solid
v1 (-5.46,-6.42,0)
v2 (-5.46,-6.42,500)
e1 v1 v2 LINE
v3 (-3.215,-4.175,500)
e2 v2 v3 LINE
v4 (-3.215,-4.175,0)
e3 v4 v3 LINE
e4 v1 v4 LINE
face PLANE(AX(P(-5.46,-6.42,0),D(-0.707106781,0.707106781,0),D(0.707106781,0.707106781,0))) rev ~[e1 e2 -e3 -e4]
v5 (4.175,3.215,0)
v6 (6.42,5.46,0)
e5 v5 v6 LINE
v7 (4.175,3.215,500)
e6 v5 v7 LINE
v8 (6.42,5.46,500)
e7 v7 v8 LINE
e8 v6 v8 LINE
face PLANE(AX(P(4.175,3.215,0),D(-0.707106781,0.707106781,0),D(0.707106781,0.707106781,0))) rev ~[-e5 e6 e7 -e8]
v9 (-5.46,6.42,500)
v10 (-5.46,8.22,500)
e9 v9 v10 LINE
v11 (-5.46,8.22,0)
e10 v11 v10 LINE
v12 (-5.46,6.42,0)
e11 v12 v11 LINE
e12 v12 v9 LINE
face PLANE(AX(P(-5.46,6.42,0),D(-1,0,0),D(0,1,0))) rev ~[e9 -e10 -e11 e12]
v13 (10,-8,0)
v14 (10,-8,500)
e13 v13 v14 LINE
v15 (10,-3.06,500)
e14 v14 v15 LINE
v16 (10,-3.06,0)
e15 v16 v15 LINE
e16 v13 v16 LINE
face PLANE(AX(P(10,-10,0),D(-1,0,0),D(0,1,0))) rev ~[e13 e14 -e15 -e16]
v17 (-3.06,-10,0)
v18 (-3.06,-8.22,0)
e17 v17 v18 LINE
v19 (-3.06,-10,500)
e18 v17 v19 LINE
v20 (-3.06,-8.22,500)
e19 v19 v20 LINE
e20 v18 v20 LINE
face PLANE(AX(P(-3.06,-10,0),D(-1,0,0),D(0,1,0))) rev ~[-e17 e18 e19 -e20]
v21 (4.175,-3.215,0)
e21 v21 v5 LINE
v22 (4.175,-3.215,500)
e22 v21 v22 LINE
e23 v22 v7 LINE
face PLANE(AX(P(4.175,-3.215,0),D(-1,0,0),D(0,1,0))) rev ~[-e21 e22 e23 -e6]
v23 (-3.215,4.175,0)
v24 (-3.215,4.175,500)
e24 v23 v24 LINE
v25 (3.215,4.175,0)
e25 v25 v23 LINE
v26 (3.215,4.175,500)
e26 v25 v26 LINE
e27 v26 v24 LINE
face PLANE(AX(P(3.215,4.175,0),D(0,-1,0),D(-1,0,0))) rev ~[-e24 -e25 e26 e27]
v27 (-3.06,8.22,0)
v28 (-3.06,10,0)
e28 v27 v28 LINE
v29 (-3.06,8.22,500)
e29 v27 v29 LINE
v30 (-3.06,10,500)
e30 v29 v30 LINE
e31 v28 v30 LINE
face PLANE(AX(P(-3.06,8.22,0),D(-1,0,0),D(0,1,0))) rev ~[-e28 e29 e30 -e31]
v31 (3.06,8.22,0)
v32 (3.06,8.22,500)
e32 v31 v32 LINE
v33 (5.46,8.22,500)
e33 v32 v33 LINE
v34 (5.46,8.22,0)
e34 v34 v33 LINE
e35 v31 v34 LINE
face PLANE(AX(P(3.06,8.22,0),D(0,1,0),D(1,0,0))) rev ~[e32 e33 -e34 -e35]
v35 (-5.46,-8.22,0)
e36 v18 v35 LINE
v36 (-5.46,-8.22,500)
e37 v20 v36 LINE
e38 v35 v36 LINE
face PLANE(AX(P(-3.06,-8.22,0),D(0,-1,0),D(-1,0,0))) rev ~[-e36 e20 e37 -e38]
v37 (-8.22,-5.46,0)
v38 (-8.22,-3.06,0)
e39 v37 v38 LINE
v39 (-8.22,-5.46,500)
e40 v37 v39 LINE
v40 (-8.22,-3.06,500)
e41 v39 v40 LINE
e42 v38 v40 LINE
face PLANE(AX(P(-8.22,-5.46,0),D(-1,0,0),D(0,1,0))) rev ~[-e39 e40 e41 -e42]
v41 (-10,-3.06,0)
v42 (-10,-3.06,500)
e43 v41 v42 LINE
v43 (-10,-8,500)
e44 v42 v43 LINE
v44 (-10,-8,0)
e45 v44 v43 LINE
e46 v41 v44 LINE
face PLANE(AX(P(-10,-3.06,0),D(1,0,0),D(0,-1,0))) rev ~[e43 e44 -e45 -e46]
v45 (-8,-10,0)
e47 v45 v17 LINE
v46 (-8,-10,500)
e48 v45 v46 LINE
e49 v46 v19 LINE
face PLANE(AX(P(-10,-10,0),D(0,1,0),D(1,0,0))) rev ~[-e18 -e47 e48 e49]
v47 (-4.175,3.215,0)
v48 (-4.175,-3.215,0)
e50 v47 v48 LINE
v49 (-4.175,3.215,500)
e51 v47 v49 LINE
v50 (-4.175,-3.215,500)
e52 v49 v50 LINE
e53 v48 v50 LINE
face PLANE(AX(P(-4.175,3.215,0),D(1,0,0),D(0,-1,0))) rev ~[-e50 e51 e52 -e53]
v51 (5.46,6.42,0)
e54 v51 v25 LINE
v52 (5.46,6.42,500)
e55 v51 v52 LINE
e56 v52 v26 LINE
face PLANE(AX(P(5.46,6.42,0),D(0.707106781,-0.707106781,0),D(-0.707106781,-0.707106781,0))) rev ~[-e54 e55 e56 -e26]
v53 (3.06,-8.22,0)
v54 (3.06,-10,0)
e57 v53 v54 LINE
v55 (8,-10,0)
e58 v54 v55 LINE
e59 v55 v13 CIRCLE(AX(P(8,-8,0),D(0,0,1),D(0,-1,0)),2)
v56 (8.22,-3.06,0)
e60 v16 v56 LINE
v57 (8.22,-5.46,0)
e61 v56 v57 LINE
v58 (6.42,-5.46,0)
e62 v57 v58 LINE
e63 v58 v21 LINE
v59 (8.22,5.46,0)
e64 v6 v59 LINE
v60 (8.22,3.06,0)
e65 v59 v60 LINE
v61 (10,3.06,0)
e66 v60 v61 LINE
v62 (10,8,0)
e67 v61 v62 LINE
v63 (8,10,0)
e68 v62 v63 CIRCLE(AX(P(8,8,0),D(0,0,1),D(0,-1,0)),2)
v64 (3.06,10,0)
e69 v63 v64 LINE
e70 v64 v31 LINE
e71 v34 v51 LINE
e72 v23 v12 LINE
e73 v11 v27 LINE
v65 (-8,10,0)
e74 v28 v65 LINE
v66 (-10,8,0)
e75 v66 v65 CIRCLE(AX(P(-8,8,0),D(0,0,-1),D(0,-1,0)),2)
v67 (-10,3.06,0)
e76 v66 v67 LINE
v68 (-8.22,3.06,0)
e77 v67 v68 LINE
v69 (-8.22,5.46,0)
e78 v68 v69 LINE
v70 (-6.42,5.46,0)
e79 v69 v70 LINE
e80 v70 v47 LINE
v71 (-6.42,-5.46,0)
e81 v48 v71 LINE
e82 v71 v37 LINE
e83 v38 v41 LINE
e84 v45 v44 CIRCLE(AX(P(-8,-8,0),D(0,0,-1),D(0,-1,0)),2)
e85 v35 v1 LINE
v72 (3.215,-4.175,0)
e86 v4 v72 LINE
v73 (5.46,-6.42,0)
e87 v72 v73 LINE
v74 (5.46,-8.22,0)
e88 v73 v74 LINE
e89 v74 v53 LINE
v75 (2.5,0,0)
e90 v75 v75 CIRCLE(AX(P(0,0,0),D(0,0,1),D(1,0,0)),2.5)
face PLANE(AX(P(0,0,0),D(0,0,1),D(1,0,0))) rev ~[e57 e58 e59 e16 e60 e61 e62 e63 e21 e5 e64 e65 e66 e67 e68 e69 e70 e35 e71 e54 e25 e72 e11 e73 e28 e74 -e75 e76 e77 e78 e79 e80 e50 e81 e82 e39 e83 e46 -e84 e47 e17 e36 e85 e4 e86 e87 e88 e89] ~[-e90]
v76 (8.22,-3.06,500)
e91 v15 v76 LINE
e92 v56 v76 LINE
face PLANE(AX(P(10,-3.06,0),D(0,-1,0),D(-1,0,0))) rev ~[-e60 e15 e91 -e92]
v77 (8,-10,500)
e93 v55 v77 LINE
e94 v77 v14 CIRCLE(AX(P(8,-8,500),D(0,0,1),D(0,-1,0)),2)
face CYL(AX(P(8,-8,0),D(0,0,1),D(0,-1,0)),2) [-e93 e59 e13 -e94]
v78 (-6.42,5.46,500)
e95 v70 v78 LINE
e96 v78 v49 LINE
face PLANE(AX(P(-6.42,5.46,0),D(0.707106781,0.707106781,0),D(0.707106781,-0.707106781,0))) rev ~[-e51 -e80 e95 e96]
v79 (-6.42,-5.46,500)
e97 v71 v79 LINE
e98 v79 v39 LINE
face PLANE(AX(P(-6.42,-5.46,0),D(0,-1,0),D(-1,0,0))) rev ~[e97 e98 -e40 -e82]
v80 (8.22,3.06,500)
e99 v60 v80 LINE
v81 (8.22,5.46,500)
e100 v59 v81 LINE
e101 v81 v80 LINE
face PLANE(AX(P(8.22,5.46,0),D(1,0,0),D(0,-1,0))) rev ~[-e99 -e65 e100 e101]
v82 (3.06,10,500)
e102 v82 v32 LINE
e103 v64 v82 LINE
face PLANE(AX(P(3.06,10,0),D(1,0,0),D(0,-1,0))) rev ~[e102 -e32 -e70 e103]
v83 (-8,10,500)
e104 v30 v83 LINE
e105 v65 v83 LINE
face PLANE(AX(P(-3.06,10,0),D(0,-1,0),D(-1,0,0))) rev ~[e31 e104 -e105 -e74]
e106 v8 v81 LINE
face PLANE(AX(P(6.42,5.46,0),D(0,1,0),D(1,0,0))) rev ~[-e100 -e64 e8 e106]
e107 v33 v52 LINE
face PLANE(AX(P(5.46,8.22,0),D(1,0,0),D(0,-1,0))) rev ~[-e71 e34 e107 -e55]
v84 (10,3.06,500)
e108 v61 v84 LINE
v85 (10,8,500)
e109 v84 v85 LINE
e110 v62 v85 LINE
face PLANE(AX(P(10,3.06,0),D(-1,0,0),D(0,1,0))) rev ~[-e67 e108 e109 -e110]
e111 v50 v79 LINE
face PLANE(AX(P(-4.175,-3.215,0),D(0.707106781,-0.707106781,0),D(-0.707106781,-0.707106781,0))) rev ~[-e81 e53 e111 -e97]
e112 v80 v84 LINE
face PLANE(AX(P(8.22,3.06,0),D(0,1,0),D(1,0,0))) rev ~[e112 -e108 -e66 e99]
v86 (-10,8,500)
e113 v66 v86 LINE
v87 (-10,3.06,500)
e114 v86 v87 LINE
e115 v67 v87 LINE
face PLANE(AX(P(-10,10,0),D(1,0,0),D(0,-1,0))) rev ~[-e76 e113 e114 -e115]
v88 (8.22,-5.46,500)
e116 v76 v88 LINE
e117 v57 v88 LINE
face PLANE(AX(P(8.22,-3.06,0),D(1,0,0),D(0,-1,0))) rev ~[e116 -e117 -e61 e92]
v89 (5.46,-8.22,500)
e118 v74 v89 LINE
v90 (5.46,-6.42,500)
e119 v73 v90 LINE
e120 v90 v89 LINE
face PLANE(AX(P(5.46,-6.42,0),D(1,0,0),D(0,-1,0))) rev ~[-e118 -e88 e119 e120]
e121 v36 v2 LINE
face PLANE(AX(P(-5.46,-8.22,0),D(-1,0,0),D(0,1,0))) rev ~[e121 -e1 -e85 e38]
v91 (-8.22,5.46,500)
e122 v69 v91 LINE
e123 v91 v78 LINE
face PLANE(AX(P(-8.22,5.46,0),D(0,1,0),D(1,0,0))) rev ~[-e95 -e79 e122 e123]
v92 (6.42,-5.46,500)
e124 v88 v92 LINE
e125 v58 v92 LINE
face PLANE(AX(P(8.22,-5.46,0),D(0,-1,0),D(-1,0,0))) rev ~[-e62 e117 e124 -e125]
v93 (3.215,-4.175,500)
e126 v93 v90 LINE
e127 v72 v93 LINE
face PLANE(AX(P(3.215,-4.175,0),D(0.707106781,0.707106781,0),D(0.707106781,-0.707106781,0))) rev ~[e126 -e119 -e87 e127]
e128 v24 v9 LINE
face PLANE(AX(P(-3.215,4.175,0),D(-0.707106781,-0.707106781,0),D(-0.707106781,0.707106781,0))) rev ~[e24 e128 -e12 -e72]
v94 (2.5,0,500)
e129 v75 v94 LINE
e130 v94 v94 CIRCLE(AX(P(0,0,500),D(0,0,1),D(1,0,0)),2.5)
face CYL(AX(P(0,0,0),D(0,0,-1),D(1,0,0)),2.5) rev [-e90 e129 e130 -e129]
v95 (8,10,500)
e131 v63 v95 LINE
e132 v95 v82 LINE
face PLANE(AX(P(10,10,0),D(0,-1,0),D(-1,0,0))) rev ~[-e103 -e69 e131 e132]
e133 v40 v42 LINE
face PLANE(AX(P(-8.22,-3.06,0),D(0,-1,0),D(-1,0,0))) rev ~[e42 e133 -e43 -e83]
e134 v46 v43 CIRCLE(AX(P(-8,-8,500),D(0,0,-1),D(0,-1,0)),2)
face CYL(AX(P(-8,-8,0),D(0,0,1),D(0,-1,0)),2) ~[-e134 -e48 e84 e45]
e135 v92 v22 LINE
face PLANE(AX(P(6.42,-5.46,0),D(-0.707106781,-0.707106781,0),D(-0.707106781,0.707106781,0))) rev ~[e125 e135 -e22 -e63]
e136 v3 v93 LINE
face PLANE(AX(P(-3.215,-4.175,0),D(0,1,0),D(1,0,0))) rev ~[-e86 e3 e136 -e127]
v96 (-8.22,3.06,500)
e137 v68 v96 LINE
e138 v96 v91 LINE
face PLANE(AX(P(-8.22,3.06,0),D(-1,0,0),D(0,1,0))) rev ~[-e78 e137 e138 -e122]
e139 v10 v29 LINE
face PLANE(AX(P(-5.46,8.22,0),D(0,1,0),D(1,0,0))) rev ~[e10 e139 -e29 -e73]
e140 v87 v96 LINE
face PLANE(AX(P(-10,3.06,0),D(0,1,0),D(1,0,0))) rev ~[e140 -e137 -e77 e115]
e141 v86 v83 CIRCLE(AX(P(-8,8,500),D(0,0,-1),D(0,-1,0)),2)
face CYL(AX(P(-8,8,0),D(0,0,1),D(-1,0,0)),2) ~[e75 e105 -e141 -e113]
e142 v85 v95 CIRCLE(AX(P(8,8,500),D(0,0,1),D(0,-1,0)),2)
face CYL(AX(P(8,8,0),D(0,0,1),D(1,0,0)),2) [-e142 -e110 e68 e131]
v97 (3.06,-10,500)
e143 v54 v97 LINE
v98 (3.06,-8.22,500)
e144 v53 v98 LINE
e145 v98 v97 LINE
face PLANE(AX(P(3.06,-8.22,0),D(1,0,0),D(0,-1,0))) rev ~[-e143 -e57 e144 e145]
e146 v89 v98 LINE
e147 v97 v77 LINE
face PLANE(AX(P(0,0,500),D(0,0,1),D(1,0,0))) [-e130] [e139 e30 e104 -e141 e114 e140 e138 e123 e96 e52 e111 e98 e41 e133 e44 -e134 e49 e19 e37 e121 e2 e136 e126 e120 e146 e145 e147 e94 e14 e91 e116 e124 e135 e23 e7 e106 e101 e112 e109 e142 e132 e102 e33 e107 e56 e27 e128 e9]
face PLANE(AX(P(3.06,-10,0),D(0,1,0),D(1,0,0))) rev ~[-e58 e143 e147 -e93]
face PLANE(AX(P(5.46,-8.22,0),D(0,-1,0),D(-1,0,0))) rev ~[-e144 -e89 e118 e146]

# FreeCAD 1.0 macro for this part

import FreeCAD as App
import Part
import Sketcher

V = App.Vector


def edges_at(feature, points):
    """Names of the edges that pass closest to the given points."""
    edges = feature.Shape.Edges
    near = lambda p: min(range(len(edges)), key=lambda i: edges[i].distToShape(Part.Vertex(*p))[0])
    return sorted({f"Edge{near(p) + 1}" for p in points})

doc = App.newDocument("Part")
params = doc.addObject("Spreadsheet::Sheet", "Params")
for row, (alias, value) in enumerate([
    ("sketch1_diameter", "5 mm"),
    ("sketch1_width", "2.4 mm"),
    ("sketch1_width2", "1.8 mm"),
    ("sketch1_width3", "6.43 mm"),
    ("sketch1_width4", "6.94 mm"),
    ("pad1_length", "500 mm"),
    ("fillet_radius", "2 mm"),
], start=1):
    params.set(f"A{row}", alias)
    params.set(f"B{row}", "=" + value)
    params.setAlias(f"B{row}", alias)

body = doc.addObject("PartDesign::Body", "Body")

# Sketch on XY plane
sketch1 = body.newObject("Sketcher::SketchObject", "Sketch")
sketch1.AttachmentSupport = (doc.getObject("XY_Plane"), [""])
sketch1.MapMode = "FlatFace"
sketch1.addGeometry([
    Part.LineSegment(V(-5.5, -6.4, 0), V(-3.2, -4.2, 0)),  # 0
    Part.LineSegment(V(-3.2, -4.2, 0), V(3.2, -4.2, 0)),  # 1
    Part.LineSegment(V(3.2, -4.2, 0), V(5.5, -6.4, 0)),  # 2
    Part.LineSegment(V(5.5, -6.4, 0), V(5.5, -8.2, 0)),  # 3
    Part.LineSegment(V(5.5, -8.2, 0), V(3.1, -8.2, 0)),  # 4
    Part.LineSegment(V(3.1, -8.2, 0), V(3.1, -10, 0)),  # 5
    Part.LineSegment(V(3.1, -10, 0), V(10, -10, 0)),  # 6
    Part.LineSegment(V(10, -10, 0), V(10, -3.1, 0)),  # 7
    Part.LineSegment(V(10, -3.1, 0), V(8.2, -3.1, 0)),  # 8
    Part.LineSegment(V(8.2, -3.1, 0), V(8.2, -5.5, 0)),  # 9
    Part.LineSegment(V(8.2, -5.5, 0), V(6.4, -5.5, 0)),  # 10
    Part.LineSegment(V(6.4, -5.5, 0), V(4.2, -3.2, 0)),  # 11
    Part.LineSegment(V(4.2, -3.2, 0), V(4.2, 3.2, 0)),  # 12
    Part.LineSegment(V(4.2, 3.2, 0), V(6.4, 5.5, 0)),  # 13
    Part.LineSegment(V(6.4, 5.5, 0), V(8.2, 5.5, 0)),  # 14
    Part.LineSegment(V(8.2, 5.5, 0), V(8.2, 3.1, 0)),  # 15
    Part.LineSegment(V(8.2, 3.1, 0), V(10, 3.1, 0)),  # 16
    Part.LineSegment(V(10, 3.1, 0), V(10, 10, 0)),  # 17
    Part.LineSegment(V(10, 10, 0), V(3.1, 10, 0)),  # 18
    Part.LineSegment(V(3.1, 10, 0), V(3.1, 8.2, 0)),  # 19
    Part.LineSegment(V(3.1, 8.2, 0), V(5.5, 8.2, 0)),  # 20
    Part.LineSegment(V(5.5, 8.2, 0), V(5.5, 6.4, 0)),  # 21
    Part.LineSegment(V(5.5, 6.4, 0), V(3.2, 4.2, 0)),  # 22
    Part.LineSegment(V(3.2, 4.2, 0), V(-3.2, 4.2, 0)),  # 23
    Part.LineSegment(V(-3.2, 4.2, 0), V(-5.5, 6.4, 0)),  # 24
    Part.LineSegment(V(-5.5, 6.4, 0), V(-5.5, 8.2, 0)),  # 25
    Part.LineSegment(V(-5.5, 8.2, 0), V(-3.1, 8.2, 0)),  # 26
    Part.LineSegment(V(-3.1, 8.2, 0), V(-3.1, 10, 0)),  # 27
    Part.LineSegment(V(-3.1, 10, 0), V(-10, 10, 0)),  # 28
    Part.LineSegment(V(-10, 10, 0), V(-10, 3.1, 0)),  # 29
    Part.LineSegment(V(-10, 3.1, 0), V(-8.2, 3.1, 0)),  # 30
    Part.LineSegment(V(-8.2, 3.1, 0), V(-8.2, 5.5, 0)),  # 31
    Part.LineSegment(V(-8.2, 5.5, 0), V(-6.4, 5.5, 0)),  # 32
    Part.LineSegment(V(-6.4, 5.5, 0), V(-4.2, 3.2, 0)),  # 33
    Part.LineSegment(V(-4.2, 3.2, 0), V(-4.2, -3.2, 0)),  # 34
    Part.LineSegment(V(-4.2, -3.2, 0), V(-6.4, -5.5, 0)),  # 35
    Part.LineSegment(V(-6.4, -5.5, 0), V(-8.2, -5.5, 0)),  # 36
    Part.LineSegment(V(-8.2, -5.5, 0), V(-8.2, -3.1, 0)),  # 37
    Part.LineSegment(V(-8.2, -3.1, 0), V(-10, -3.1, 0)),  # 38
    Part.LineSegment(V(-10, -3.1, 0), V(-10, -10, 0)),  # 39
    Part.LineSegment(V(-10, -10, 0), V(-3.1, -10, 0)),  # 40
    Part.LineSegment(V(-3.1, -10, 0), V(-3.1, -8.2, 0)),  # 41
    Part.LineSegment(V(-3.1, -8.2, 0), V(-5.5, -8.2, 0)),  # 42
    Part.LineSegment(V(-5.5, -8.2, 0), V(-5.5, -6.4, 0)),  # 43
    Part.Circle(V(0, 0, 0), V(0, 0, 1), 2.5),  # 44
], False)
sketch1.addConstraint([
    Sketcher.Constraint("Coincident", 0, 2, 1, 1),
    Sketcher.Constraint("Coincident", 1, 2, 2, 1),
    Sketcher.Constraint("Coincident", 2, 2, 3, 1),
    Sketcher.Constraint("Coincident", 3, 2, 4, 1),
    Sketcher.Constraint("Coincident", 4, 2, 5, 1),
    Sketcher.Constraint("Coincident", 5, 2, 6, 1),
    Sketcher.Constraint("Coincident", 6, 2, 7, 1),
    Sketcher.Constraint("Coincident", 7, 2, 8, 1),
    Sketcher.Constraint("Coincident", 8, 2, 9, 1),
    Sketcher.Constraint("Coincident", 9, 2, 10, 1),
    Sketcher.Constraint("Coincident", 10, 2, 11, 1),
    Sketcher.Constraint("Coincident", 11, 2, 12, 1),
    Sketcher.Constraint("Coincident", 12, 2, 13, 1),
    Sketcher.Constraint("Coincident", 13, 2, 14, 1),
    Sketcher.Constraint("Coincident", 14, 2, 15, 1),
    Sketcher.Constraint("Coincident", 15, 2, 16, 1),
    Sketcher.Constraint("Coincident", 16, 2, 17, 1),
    Sketcher.Constraint("Coincident", 17, 2, 18, 1),
    Sketcher.Constraint("Coincident", 18, 2, 19, 1),
    Sketcher.Constraint("Coincident", 19, 2, 20, 1),
    Sketcher.Constraint("Coincident", 20, 2, 21, 1),
    Sketcher.Constraint("Coincident", 21, 2, 22, 1),
    Sketcher.Constraint("Coincident", 22, 2, 23, 1),
    Sketcher.Constraint("Coincident", 23, 2, 24, 1),
    Sketcher.Constraint("Coincident", 24, 2, 25, 1),
    Sketcher.Constraint("Coincident", 25, 2, 26, 1),
    Sketcher.Constraint("Coincident", 26, 2, 27, 1),
    Sketcher.Constraint("Coincident", 27, 2, 28, 1),
    Sketcher.Constraint("Coincident", 28, 2, 29, 1),
    Sketcher.Constraint("Coincident", 29, 2, 30, 1),
    Sketcher.Constraint("Coincident", 30, 2, 31, 1),
    Sketcher.Constraint("Coincident", 31, 2, 32, 1),
    Sketcher.Constraint("Coincident", 32, 2, 33, 1),
    Sketcher.Constraint("Coincident", 33, 2, 34, 1),
    Sketcher.Constraint("Coincident", 34, 2, 35, 1),
    Sketcher.Constraint("Coincident", 35, 2, 36, 1),
    Sketcher.Constraint("Coincident", 36, 2, 37, 1),
    Sketcher.Constraint("Coincident", 37, 2, 38, 1),
    Sketcher.Constraint("Coincident", 38, 2, 39, 1),
    Sketcher.Constraint("Coincident", 39, 2, 40, 1),
    Sketcher.Constraint("Coincident", 40, 2, 41, 1),
    Sketcher.Constraint("Coincident", 41, 2, 42, 1),
    Sketcher.Constraint("Coincident", 42, 2, 43, 1),
    Sketcher.Constraint("Coincident", 43, 2, 0, 1),
    Sketcher.Constraint("Horizontal", 1),
    Sketcher.Constraint("Vertical", 3),
    Sketcher.Constraint("Horizontal", 4),
    Sketcher.Constraint("Vertical", 5),
    Sketcher.Constraint("Horizontal", 6),
    Sketcher.Constraint("Vertical", 7),
    Sketcher.Constraint("Horizontal", 8),
    Sketcher.Constraint("Vertical", 9),
    Sketcher.Constraint("Horizontal", 10),
    Sketcher.Constraint("Vertical", 12),
    Sketcher.Constraint("Horizontal", 14),
    Sketcher.Constraint("Vertical", 15),
    Sketcher.Constraint("Horizontal", 16),
    Sketcher.Constraint("Vertical", 17),
    Sketcher.Constraint("Horizontal", 18),
    Sketcher.Constraint("Vertical", 19),
    Sketcher.Constraint("Horizontal", 20),
    Sketcher.Constraint("Vertical", 21),
    Sketcher.Constraint("Horizontal", 23),
    Sketcher.Constraint("Vertical", 25),
    Sketcher.Constraint("Horizontal", 26),
    Sketcher.Constraint("Vertical", 27),
    Sketcher.Constraint("Horizontal", 28),
    Sketcher.Constraint("Vertical", 29),
    Sketcher.Constraint("Horizontal", 30),
    Sketcher.Constraint("Vertical", 31),
    Sketcher.Constraint("Horizontal", 32),
    Sketcher.Constraint("Vertical", 34),
    Sketcher.Constraint("Horizontal", 36),
    Sketcher.Constraint("Vertical", 37),
    Sketcher.Constraint("Horizontal", 38),
    Sketcher.Constraint("Vertical", 39),
    Sketcher.Constraint("Horizontal", 40),
    Sketcher.Constraint("Vertical", 41),
    Sketcher.Constraint("Horizontal", 42),
    Sketcher.Constraint("Vertical", 43),
    Sketcher.Constraint("Coincident", 44, 3, -1, 1),
    Sketcher.Constraint("Symmetric", 0, 2, 22, 2, -1, 1),
    Sketcher.Constraint("Symmetric", 2, 2, 24, 2, -1, 1),
    Sketcher.Constraint("Symmetric", 4, 2, 26, 2, -1, 1),
    Sketcher.Constraint("Symmetric", 6, 2, 28, 2, -1, 1),
    Sketcher.Constraint("Symmetric", 8, 2, 30, 2, -1, 1),
    Sketcher.Constraint("Symmetric", 10, 2, 32, 2, -1, 1),
    Sketcher.Constraint("Symmetric", 11, 2, 33, 2, -1, 1),
    Sketcher.Constraint("Symmetric", 13, 2, 35, 2, -1, 1),
    Sketcher.Constraint("Symmetric", 15, 2, 37, 2, -1, 1),
    Sketcher.Constraint("Symmetric", 17, 2, 39, 2, -1, 1),
    Sketcher.Constraint("Symmetric", 19, 2, 41, 2, -1, 1),
    Sketcher.Constraint("Symmetric", 21, 2, 43, 2, -1, 1),
    Sketcher.Constraint("Symmetric", 21, 2, 24, 2, -2),
    Sketcher.Constraint("Symmetric", 19, 2, 26, 2, -2),
    Sketcher.Constraint("Symmetric", 17, 2, 28, 2, -2),
    Sketcher.Constraint("Symmetric", 15, 2, 30, 2, -2),
    Sketcher.Constraint("Symmetric", 13, 2, 32, 2, -2),
    Sketcher.Constraint("Perpendicular", 0, 2),
    Sketcher.Constraint("Parallel", 2, 11),
    Sketcher.Constraint("Perpendicular", 11, 13),
    Sketcher.Constraint("Perpendicular", 22, 24),
    Sketcher.Constraint("Perpendicular", 33, 35),
    Sketcher.Constraint("Horizontal", 12, 2, 33, 2),
    Sketcher.Constraint("Equal", 36, 3),
    Sketcher.Constraint("Equal", 38, 5),
    Sketcher.Constraint("Equal", 40, 7),
    Sketcher.Constraint("Equal", 42, 9),
    Sketcher.Constraint("Equal", 23, 12),
    Sketcher.Constraint("Equal", 2, 11),
    Sketcher.Constraint("Diameter", 44, 5.0),
    Sketcher.Constraint("DistanceX", 4, 2, 4, 1, 2.4),
    Sketcher.Constraint("DistanceX", 10, 2, 10, 1, 1.8),
    Sketcher.Constraint("DistanceY", 5, 2, -1, 1, 10.0),
    Sketcher.Constraint("DistanceX", 1, 1, 1, 2, 6.43),
    Sketcher.Constraint("DistanceX", 6, 1, 6, 2, 6.94),
    Sketcher.Constraint("DistanceX", 8, 2, 8, 1, 1.78),
])
sketch1.setExpression("Constraints[110]", "Params.sketch1_diameter")
sketch1.setExpression("Constraints[111]", "Params.sketch1_width")
sketch1.setExpression("Constraints[112]", "Params.sketch1_width2")
sketch1.setExpression("Constraints[114]", "Params.sketch1_width3")
sketch1.setExpression("Constraints[115]", "Params.sketch1_width4")
pad1 = body.newObject("PartDesign::Pad", "Pad")
pad1.Profile = sketch1
pad1.setExpression("Length", "Params.pad1_length")
doc.recompute()

fillet = body.newObject("PartDesign::Fillet", "Fillet")
fillet.Base = (pad1, edges_at(pad1, [
    (10, -10, 250),
    (-10, -10, 250),
    (-10, 10, 250),
    (10, 10, 250),
]))
fillet.setExpression("Radius", "Params.fillet_radius")

doc.recompute()
